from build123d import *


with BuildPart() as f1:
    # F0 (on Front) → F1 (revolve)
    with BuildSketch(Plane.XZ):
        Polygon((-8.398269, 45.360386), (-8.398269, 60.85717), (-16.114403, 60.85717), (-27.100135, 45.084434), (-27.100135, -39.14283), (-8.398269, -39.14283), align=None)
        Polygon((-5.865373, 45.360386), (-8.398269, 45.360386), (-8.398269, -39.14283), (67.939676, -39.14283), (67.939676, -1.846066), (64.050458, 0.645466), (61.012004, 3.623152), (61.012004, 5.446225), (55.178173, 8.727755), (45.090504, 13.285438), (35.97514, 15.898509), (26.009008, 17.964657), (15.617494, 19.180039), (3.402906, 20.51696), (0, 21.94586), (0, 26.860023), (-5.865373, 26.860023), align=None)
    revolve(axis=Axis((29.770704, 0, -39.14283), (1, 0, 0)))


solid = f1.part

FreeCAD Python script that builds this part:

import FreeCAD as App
import Part
import Sketcher
Q = App.Units.Quantity

doc = App.newDocument("Part")
params = doc.addObject("Spreadsheet::Sheet", "Params")
for row, (alias, value) in enumerate([
    ("revolution_angle", "360 deg"),
], start=1):
    params.set(f"A{row}", alias)
    params.set(f"B{row}", "=" + value)
    params.setAlias(f"B{row}", alias)

body = doc.addObject("PartDesign::Body", "Body")

# Sketch on XZ plane
sketch1 = body.newObject("Sketcher::SketchObject", "Sketch")
sketch1.AttachmentSupport = (doc.getObject("XZ_Plane"), [""])
sketch1.MapMode = "FlatFace"
sketch1.addGeometry(Part.LineSegment(App.Vector(-8.4, 60.9, 0), App.Vector(-16.1, 60.9, 0)), False)
sketch1.addGeometry(Part.LineSegment(App.Vector(-16.1, 60.9, 0), App.Vector(-27.1, 45.1, 0)), False)
sketch1.addGeometry(Part.LineSegment(App.Vector(-27.1, 45.1, 0), App.Vector(-27.1, -39.1, 0)), False)
sketch1.addGeometry(Part.LineSegment(App.Vector(-27.1, -39.1, 0), App.Vector(67.9, -39.1, 0)), False)
sketch1.addGeometry(Part.LineSegment(App.Vector(67.9, -39.1, 0), App.Vector(67.9, -1.8, 0)), False)
sketch1.addGeometry(Part.LineSegment(App.Vector(67.9, -1.8, 0), App.Vector(64.1, 0.6, 0)), False)
sketch1.addGeometry(Part.LineSegment(App.Vector(64.1, 0.6, 0), App.Vector(61, 3.6, 0)), False)
sketch1.addGeometry(Part.LineSegment(App.Vector(61, 3.6, 0), App.Vector(61, 5.4, 0)), False)
sketch1.addGeometry(Part.LineSegment(App.Vector(61, 5.4, 0), App.Vector(55.2, 8.7, 0)), False)
sketch1.addGeometry(Part.LineSegment(App.Vector(55.2, 8.7, 0), App.Vector(45.1, 13.3, 0)), False)
sketch1.addGeometry(Part.LineSegment(App.Vector(45.1, 13.3, 0), App.Vector(36, 15.9, 0)), False)
sketch1.addGeometry(Part.LineSegment(App.Vector(36, 15.9, 0), App.Vector(26, 18, 0)), False)
sketch1.addGeometry(Part.LineSegment(App.Vector(26, 18, 0), App.Vector(15.6, 19.2, 0)), False)
sketch1.addGeometry(Part.LineSegment(App.Vector(15.6, 19.2, 0), App.Vector(3.4, 20.5, 0)), False)
sketch1.addGeometry(Part.LineSegment(App.Vector(3.4, 20.5, 0), App.Vector(0, 21.9, 0)), False)
sketch1.addGeometry(Part.LineSegment(App.Vector(0, 21.9, 0), App.Vector(0, 26.9, 0)), False)
sketch1.addGeometry(Part.LineSegment(App.Vector(0, 26.9, 0), App.Vector(-5.9, 26.9, 0)), False)
sketch1.addGeometry(Part.LineSegment(App.Vector(-5.9, 26.9, 0), App.Vector(-5.9, 45.4, 0)), False)
sketch1.addGeometry(Part.LineSegment(App.Vector(-5.9, 45.4, 0), App.Vector(-8.4, 45.4, 0)), False)
sketch1.addGeometry(Part.LineSegment(App.Vector(-8.4, 45.4, 0), App.Vector(-8.4, 60.9, 0)), False)
sketch1.addGeometry(Part.LineSegment(App.Vector(-27.1, -39.1, 0), App.Vector(67.9, -39.1, 0)), True)  # axis
sketch1.addConstraint(Sketcher.Constraint("Coincident", 0, 2, 1, 1))
sketch1.addConstraint(Sketcher.Constraint("Coincident", 1, 2, 2, 1))
sketch1.addConstraint(Sketcher.Constraint("Coincident", 2, 2, 3, 1))
sketch1.addConstraint(Sketcher.Constraint("Coincident", 3, 2, 4, 1))
sketch1.addConstraint(Sketcher.Constraint("Coincident", 4, 2, 5, 1))
sketch1.addConstraint(Sketcher.Constraint("Coincident", 5, 2, 6, 1))
sketch1.addConstraint(Sketcher.Constraint("Coincident", 6, 2, 7, 1))
sketch1.addConstraint(Sketcher.Constraint("Coincident", 7, 2, 8, 1))
sketch1.addConstraint(Sketcher.Constraint("Coincident", 8, 2, 9, 1))
sketch1.addConstraint(Sketcher.Constraint("Coincident", 9, 2, 10, 1))
sketch1.addConstraint(Sketcher.Constraint("Coincident", 10, 2, 11, 1))
sketch1.addConstraint(Sketcher.Constraint("Coincident", 11, 2, 12, 1))
sketch1.addConstraint(Sketcher.Constraint("Coincident", 12, 2, 13, 1))
sketch1.addConstraint(Sketcher.Constraint("Coincident", 13, 2, 14, 1))
sketch1.addConstraint(Sketcher.Constraint("Coincident", 14, 2, 15, 1))
sketch1.addConstraint(Sketcher.Constraint("Coincident", 15, 2, 16, 1))
sketch1.addConstraint(Sketcher.Constraint("Coincident", 16, 2, 17, 1))
sketch1.addConstraint(Sketcher.Constraint("Coincident", 17, 2, 18, 1))
sketch1.addConstraint(Sketcher.Constraint("Coincident", 18, 2, 19, 1))
sketch1.addConstraint(Sketcher.Constraint("Coincident", 19, 2, 0, 1))
sketch1.addConstraint(Sketcher.Constraint("Horizontal", 0))
sketch1.addConstraint(Sketcher.Constraint("Vertical", 2))
sketch1.addConstraint(Sketcher.Constraint("Horizontal", 3))
sketch1.addConstraint(Sketcher.Constraint("Vertical", 4))
sketch1.addConstraint(Sketcher.Constraint("Vertical", 7))
sketch1.addConstraint(Sketcher.Constraint("Vertical", 15))
sketch1.addConstraint(Sketcher.Constraint("Horizontal", 16))
sketch1.addConstraint(Sketcher.Constraint("Vertical", 17))
sketch1.addConstraint(Sketcher.Constraint("Horizontal", 18))
sketch1.addConstraint(Sketcher.Constraint("Vertical", 19))
sketch1.addConstraint(Sketcher.Constraint("Horizontal", 20))
sketch1.addConstraint(Sketcher.Constraint("Coincident", 20, 1, 2, 2))
sketch1.addConstraint(Sketcher.Constraint("PointOnObject", 14, 2, -2))
sketch1.addConstraint(Sketcher.Constraint("Vertical", 4, 2, 20, 2))
sketch1.addConstraint(Sketcher.Constraint("DistanceY", 2, 2, 0, 2, Q("100 mm")))
sketch1.addConstraint(Sketcher.Constraint("DistanceX", 3, 1, 3, 2, Q("95.039811 mm")))
sketch1.addConstraint(Sketcher.Constraint("DistanceY", 4, 2, 1, 2, Q("46.9305 mm")))
sketch1.addConstraint(Sketcher.Constraint("DistanceX", 9, 2, 7, 2, Q("15.9215 mm")))
sketch1.addConstraint(Sketcher.Constraint("DistanceY", 8, 2, 11, 2, Q("9.236902 mm")))
sketch1.addConstraint(Sketcher.Constraint("DistanceY", 9, 2, 12, 2, Q("5.894601 mm")))
sketch1.addConstraint(Sketcher.Constraint("DistanceX", 13, 2, 11, 2, Q("22.606102 mm")))
sketch1.addConstraint(Sketcher.Constraint("DistanceY", 13, 2, 14, 2, Q("1.4289 mm")))
sketch1.addConstraint(Sketcher.Constraint("Distance", 6, Q("4.25427 mm")))
sketch1.addConstraint(Sketcher.Constraint("Distance", 8, Q("6.693431 mm")))
sketch1.addConstraint(Sketcher.Constraint("Distance", 10, Q("9.48251 mm")))
sketch1.addConstraint(Sketcher.Constraint("DistanceX", 0, 2, 0, 1, Q("7.716134 mm")))
sketch1.addConstraint(Sketcher.Constraint("DistanceX", 16, 2, 16, 1, Q("5.865373 mm")))
sketch1.addConstraint(Sketcher.Constraint("DistanceX", 18, 2, 18, 1, Q("2.532896 mm")))
sketch1.addConstraint(Sketcher.Constraint("DistanceY", 2, 2, 2, 1, Q("84.227264 mm")))
sketch1.addConstraint(Sketcher.Constraint("DistanceY", 7, 1, 7, 2, Q("1.823073 mm")))
sketch1.addConstraint(Sketcher.Constraint("DistanceY", 15, 1, 15, 2, Q("4.914163 mm")))
sketch1.addConstraint(Sketcher.Constraint("DistanceY", 17, 1, 17, 2, Q("18.500363 mm")))
sketch1.addConstraint(Sketcher.Constraint("DistanceY", 19, 1, 19, 2, Q("15.496784 mm")))
sketch1.addConstraint(Sketcher.Constraint("DistanceY", -1, 1, 0, 2, Q("60.85717 mm")))
sketch1.addConstraint(Sketcher.Constraint("DistanceX", -1, 1, 5, 2, Q("64.050458 mm")))
sketch1.addConstraint(Sketcher.Constraint("DistanceX", -1, 1, 10, 2, Q("35.97514 mm")))
sketch1.addConstraint(Sketcher.Constraint("DistanceY", -1, 1, 10, 2, Q("15.898509 mm")))
sketch1.addConstraint(Sketcher.Constraint("DistanceX", -1, 1, 11, 2, Q("26.009008 mm")))
sketch1.addConstraint(Sketcher.Constraint("DistanceY", -1, 1, 12, 2, Q("19.180039 mm")))
sketch1.addConstraint(Sketcher.Constraint("DistanceX", 0, 2, 3, 2, Q("84.054079 mm")))
sketch1.addConstraint(Sketcher.Constraint("DistanceY", 4, 2, 5, 2, Q("2.491532 mm")))
sketch1.addConstraint(Sketcher.Constraint("DistanceX", 8, 2, 7, 2, Q("5.833831 mm")))
sketch1.addConstraint(Sketcher.Constraint("DistanceX", 12, 2, 9, 2, Q("29.47301 mm")))
revolution = body.newObject("PartDesign::Revolution", "Revolution")
revolution.Profile = sketch1
revolution.ReferenceAxis = (sketch1, ["Axis0"])
revolution.setExpression("Angle", "Params.revolution_angle")

doc.recompute()
